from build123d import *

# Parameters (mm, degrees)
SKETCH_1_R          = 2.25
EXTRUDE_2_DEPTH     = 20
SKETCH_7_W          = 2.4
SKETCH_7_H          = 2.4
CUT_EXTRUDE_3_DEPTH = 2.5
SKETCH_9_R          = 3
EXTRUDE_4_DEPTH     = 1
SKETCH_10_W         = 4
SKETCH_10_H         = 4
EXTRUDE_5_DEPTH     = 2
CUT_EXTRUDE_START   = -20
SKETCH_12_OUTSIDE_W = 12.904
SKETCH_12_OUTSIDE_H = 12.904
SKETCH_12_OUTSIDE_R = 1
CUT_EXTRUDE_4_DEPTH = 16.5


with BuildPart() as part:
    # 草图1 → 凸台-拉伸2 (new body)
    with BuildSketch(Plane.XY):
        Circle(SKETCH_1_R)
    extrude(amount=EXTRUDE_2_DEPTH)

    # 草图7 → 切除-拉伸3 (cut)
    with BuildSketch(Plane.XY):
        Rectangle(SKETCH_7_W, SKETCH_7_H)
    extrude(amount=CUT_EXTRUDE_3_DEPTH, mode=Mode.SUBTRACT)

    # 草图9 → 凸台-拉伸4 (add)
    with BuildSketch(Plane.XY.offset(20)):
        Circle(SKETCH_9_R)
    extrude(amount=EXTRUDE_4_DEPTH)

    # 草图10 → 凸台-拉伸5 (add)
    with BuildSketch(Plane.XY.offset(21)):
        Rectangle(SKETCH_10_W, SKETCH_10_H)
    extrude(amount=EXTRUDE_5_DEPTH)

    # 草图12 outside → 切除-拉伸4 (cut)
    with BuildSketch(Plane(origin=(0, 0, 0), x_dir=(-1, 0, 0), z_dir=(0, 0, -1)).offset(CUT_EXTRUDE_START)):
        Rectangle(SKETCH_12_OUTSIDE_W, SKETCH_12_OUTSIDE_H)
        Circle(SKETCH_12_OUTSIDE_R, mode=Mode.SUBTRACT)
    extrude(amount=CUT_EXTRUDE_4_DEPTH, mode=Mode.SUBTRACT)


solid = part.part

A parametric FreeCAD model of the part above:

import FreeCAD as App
import Part
import Sketcher

V = App.Vector


def add_polygon(sketch, points):
    """Adds a closed chain of lines whose ends are joined by coincident constraints."""
    first, n = sketch.GeometryCount, len(points)
    for a, b in zip(points, points[1:] + points[:1]):
        sketch.addGeometry(Part.LineSegment(App.Vector(*a, 0), App.Vector(*b, 0)), False)
    for i in range(n):
        sketch.addConstraint(Sketcher.Constraint("Coincident", first + i, 2, first + (i + 1) % n, 1))

doc = App.newDocument("Part")
body = doc.addObject("PartDesign::Body", "Body")

# Sketch on XY plane
sketch1 = doc.addObject("Sketcher::SketchObject", "Sketch")
body.addObject(sketch1)
sketch1.AttachmentSupport = (doc.XY_Plane, [""])
sketch1.MapMode = "FlatFace"
sketch1.addGeometry(Part.Circle(V(0, 0, 0), V(0, 0, 1), 2.25), False)
sketch1.addConstraint(Sketcher.Constraint("Coincident", 0, 3, -1, 1))
sketch1.addConstraint(Sketcher.Constraint("Diameter", 0, 4.5))
pad1 = doc.addObject("PartDesign::Pad", "Pad")
body.addObject(pad1)
pad1.Profile = sketch1
pad1.Length = 20

# Sketch on XY plane
sketch2 = doc.addObject("Sketcher::SketchObject", "Sketch001")
body.addObject(sketch2)
sketch2.AttachmentSupport = (doc.XY_Plane, [""])
sketch2.MapMode = "FlatFace"
add_polygon(sketch2, [(-1.2, 1.2), (-1.2, -1.2), (1.2, -1.2), (1.2, 1.2)])  # lines 0-3
sketch2.addConstraint(Sketcher.Constraint("Vertical", 0))
sketch2.addConstraint(Sketcher.Constraint("Horizontal", 1))
sketch2.addConstraint(Sketcher.Constraint("Vertical", 2))
sketch2.addConstraint(Sketcher.Constraint("Horizontal", 3))
sketch2.addConstraint(Sketcher.Constraint("Symmetric", 0, 2, 2, 2, -1, 1))
sketch2.addConstraint(Sketcher.Constraint("Equal", 3, 0))
sketch2.addConstraint(Sketcher.Constraint("DistanceX", 1, 1, 1, 2, 2.4))
pocket1 = doc.addObject("PartDesign::Pocket", "Pocket")
body.addObject(pocket1)
pocket1.Profile = sketch2
pocket1.Length = 2.5
pocket1.Reversed = True

# Sketch on XY plane
sketch3 = doc.addObject("Sketcher::SketchObject", "Sketch002")
body.addObject(sketch3)
sketch3.AttachmentSupport = (doc.XY_Plane, [""])
sketch3.MapMode = "FlatFace"
sketch3.AttachmentOffset = App.Placement(V(0, 0, 20), App.Rotation())
sketch3.addGeometry(Part.Circle(V(0, 0, 0), V(0, 0, 1), 3), False)
sketch3.addConstraint(Sketcher.Constraint("Coincident", 0, 3, -1, 1))
sketch3.addConstraint(Sketcher.Constraint("Diameter", 0, 6.0))
pad2 = doc.addObject("PartDesign::Pad", "Pad001")
body.addObject(pad2)
pad2.Profile = sketch3
pad2.Length = 1

# Sketch on XY plane
sketch4 = doc.addObject("Sketcher::SketchObject", "Sketch003")
body.addObject(sketch4)
sketch4.AttachmentSupport = (doc.XY_Plane, [""])
sketch4.MapMode = "FlatFace"
sketch4.AttachmentOffset = App.Placement(V(0, 0, 21), App.Rotation())
add_polygon(sketch4, [(-2, 2), (-2, -2), (2, -2), (2, 2)])  # lines 0-3
sketch4.addConstraint(Sketcher.Constraint("Vertical", 0))
sketch4.addConstraint(Sketcher.Constraint("Horizontal", 1))
sketch4.addConstraint(Sketcher.Constraint("Vertical", 2))
sketch4.addConstraint(Sketcher.Constraint("Horizontal", 3))
sketch4.addConstraint(Sketcher.Constraint("Symmetric", 0, 2, 2, 2, -1, 1))
sketch4.addConstraint(Sketcher.Constraint("Equal", 3, 0))
sketch4.addConstraint(Sketcher.Constraint("DistanceX", 1, 1, 1, 2, 4.0))
pad3 = doc.addObject("PartDesign::Pad", "Pad002")
body.addObject(pad3)
pad3.Profile = sketch4
pad3.Length = 2

# Sketch on XY plane
sketch5 = doc.addObject("Sketcher::SketchObject", "Sketch004")
body.addObject(sketch5)
sketch5.AttachmentSupport = (doc.XY_Plane, [""])
sketch5.MapMode = "FlatFace"
sketch5.AttachmentOffset = App.Placement(V(0, 0, 20), App.Rotation())
add_polygon(sketch5, [(6.452, 6.452), (6.452, -6.452), (-6.452, -6.452), (-6.452, 6.452)])  # lines 0-3
sketch5.addGeometry(Part.Circle(V(0, 0, 0), V(0, 0, 1), 1), False)  # 4
sketch5.addConstraint(Sketcher.Constraint("Vertical", 0))
sketch5.addConstraint(Sketcher.Constraint("Horizontal", 1))
sketch5.addConstraint(Sketcher.Constraint("Vertical", 2))
sketch5.addConstraint(Sketcher.Constraint("Horizontal", 3))
sketch5.addConstraint(Sketcher.Constraint("Coincident", 4, 3, -1, 1))
sketch5.addConstraint(Sketcher.Constraint("Symmetric", 0, 2, 2, 2, -1, 1))
sketch5.addConstraint(Sketcher.Constraint("Equal", 3, 0))
sketch5.addConstraint(Sketcher.Constraint("Diameter", 4, 2.0))
sketch5.addConstraint(Sketcher.Constraint("DistanceX", 1, 2, 1, 1, 12.904))
pocket2 = doc.addObject("PartDesign::Pocket", "Pocket001")
body.addObject(pocket2)
pocket2.Profile = sketch5
pocket2.Length = 16.5

doc.recompute()
